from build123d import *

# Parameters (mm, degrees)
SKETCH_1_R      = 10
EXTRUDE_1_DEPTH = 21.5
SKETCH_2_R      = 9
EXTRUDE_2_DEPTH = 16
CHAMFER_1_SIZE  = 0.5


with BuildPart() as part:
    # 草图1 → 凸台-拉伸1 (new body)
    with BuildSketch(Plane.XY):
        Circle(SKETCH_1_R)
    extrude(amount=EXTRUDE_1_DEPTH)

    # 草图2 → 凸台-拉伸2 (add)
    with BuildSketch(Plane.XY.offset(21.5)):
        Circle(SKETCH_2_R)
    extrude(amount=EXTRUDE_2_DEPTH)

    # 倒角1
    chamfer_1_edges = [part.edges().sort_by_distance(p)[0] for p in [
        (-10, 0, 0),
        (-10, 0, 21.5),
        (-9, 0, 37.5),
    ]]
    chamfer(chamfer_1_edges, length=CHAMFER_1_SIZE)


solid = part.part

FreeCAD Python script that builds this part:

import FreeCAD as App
import Part
import Sketcher

V = App.Vector


def edges_at(feature, points):
    """Names of the edges that pass closest to the given points."""
    edges = feature.Shape.Edges
    near = lambda p: min(range(len(edges)), key=lambda i: edges[i].distToShape(Part.Vertex(*p))[0])
    return sorted({f"Edge{near(p) + 1}" for p in points})

doc = App.newDocument("Part")
body = doc.addObject("PartDesign::Body", "Body")

# Sketch on XY plane
sketch1 = body.newObject("Sketcher::SketchObject", "Sketch")
sketch1.AttachmentSupport = (doc.getObject("XY_Plane"), [""])
sketch1.MapMode = "FlatFace"
sketch1.addGeometry(Part.Circle(V(0, 0, 0), V(0, 0, 1), 10), False)
sketch1.addConstraint(Sketcher.Constraint("Coincident", 0, 3, -1, 1))
sketch1.addConstraint(Sketcher.Constraint("Diameter", 0, 20.0))
pad1 = body.newObject("PartDesign::Pad", "Pad")
pad1.Profile = sketch1
pad1.Length = 21.5

# Sketch on XY plane
sketch2 = body.newObject("Sketcher::SketchObject", "Sketch001")
sketch2.AttachmentSupport = (doc.getObject("XY_Plane"), [""])
sketch2.MapMode = "FlatFace"
sketch2.AttachmentOffset = App.Placement(V(0, 0, 21.5), App.Rotation())
sketch2.addGeometry(Part.Circle(V(0, 0, 0), V(0, 0, 1), 9), False)
sketch2.addConstraint(Sketcher.Constraint("Coincident", 0, 3, -1, 1))
sketch2.addConstraint(Sketcher.Constraint("Diameter", 0, 18.0))
pad2 = body.newObject("PartDesign::Pad", "Pad001")
pad2.Profile = sketch2
pad2.Length = 16
doc.recompute()

chamfer = body.newObject("PartDesign::Chamfer", "Chamfer")
chamfer.Base = (pad2, edges_at(pad2, [(-10, 0, 0), (-10, 0, 21.5), (-9, 0, 37.5)]))
chamfer.Size = 0.5

doc.recompute()
